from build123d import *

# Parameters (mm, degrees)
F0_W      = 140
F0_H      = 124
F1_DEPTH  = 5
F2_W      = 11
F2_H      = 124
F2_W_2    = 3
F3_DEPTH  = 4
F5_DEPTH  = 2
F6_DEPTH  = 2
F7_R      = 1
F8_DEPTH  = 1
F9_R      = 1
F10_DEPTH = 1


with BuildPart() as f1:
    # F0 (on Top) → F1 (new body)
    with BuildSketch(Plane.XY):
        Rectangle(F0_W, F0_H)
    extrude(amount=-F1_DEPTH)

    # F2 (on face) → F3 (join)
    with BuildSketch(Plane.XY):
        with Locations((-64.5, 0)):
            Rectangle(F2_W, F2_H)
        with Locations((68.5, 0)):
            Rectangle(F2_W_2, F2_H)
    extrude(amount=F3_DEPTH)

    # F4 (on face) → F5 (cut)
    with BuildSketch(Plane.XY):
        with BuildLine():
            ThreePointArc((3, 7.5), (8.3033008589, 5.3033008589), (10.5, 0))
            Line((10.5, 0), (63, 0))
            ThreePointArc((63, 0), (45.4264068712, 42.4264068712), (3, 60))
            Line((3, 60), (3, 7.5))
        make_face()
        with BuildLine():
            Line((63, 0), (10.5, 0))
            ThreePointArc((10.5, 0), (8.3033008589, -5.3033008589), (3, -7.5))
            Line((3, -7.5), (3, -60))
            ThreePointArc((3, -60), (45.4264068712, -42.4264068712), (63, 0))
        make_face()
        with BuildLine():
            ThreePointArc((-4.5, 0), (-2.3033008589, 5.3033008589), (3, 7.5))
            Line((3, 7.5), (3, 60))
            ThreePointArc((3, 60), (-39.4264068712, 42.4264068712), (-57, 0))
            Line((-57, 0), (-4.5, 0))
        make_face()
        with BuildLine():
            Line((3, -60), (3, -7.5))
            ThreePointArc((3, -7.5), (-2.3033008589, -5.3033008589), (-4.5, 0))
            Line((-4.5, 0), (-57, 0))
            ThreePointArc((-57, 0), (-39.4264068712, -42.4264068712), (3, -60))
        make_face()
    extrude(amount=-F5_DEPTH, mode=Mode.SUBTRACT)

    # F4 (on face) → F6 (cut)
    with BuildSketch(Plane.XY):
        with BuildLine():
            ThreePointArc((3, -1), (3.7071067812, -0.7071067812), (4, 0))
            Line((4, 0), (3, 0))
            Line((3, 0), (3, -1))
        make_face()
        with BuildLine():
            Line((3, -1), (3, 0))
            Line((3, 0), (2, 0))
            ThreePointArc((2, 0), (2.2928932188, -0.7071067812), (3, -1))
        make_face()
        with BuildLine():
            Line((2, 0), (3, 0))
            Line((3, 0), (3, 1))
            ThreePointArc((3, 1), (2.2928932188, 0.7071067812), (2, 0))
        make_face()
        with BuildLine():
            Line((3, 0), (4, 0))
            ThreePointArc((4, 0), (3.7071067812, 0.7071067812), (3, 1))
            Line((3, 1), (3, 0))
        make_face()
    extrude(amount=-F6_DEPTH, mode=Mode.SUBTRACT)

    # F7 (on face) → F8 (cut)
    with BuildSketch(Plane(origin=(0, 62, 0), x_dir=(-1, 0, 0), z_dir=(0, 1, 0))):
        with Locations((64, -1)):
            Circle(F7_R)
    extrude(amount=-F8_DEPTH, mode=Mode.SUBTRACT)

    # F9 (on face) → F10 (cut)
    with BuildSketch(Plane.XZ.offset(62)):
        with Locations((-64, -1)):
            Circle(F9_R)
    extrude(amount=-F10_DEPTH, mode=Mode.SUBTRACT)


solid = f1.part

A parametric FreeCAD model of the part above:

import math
import FreeCAD as App
import Part
import Sketcher
Q = App.Units.Quantity


def add_polygon(sketch, points):
    """Adds a closed chain of lines whose ends are joined by coincident constraints."""
    first, n = sketch.GeometryCount, len(points)
    for a, b in zip(points, points[1:] + points[:1]):
        sketch.addGeometry(Part.LineSegment(App.Vector(*a, 0), App.Vector(*b, 0)), False)
    for i in range(n):
        sketch.addConstraint(Sketcher.Constraint("Coincident", first + i, 2, first + (i + 1) % n, 1))

doc = App.newDocument("Part")
body = doc.addObject("PartDesign::Body", "Body")

# Sketch on XY plane
sketch1 = body.newObject("Sketcher::SketchObject", "Sketch")
sketch1.AttachmentSupport = (doc.getObject("XY_Plane"), [""])
sketch1.MapMode = "FlatFace"
add_polygon(sketch1, [(-70, 62), (-70, -62), (70, -62), (70, 62)])  # lines 0-3
sketch1.addConstraint(Sketcher.Constraint("Vertical", 0))
sketch1.addConstraint(Sketcher.Constraint("Horizontal", 1))
sketch1.addConstraint(Sketcher.Constraint("Vertical", 2))
sketch1.addConstraint(Sketcher.Constraint("Horizontal", 3))
sketch1.addConstraint(Sketcher.Constraint("Symmetric", 0, 2, 2, 2, -1, 1))
sketch1.addConstraint(Sketcher.Constraint("DistanceX", 1, 1, 1, 2, Q("140 mm")))
sketch1.addConstraint(Sketcher.Constraint("DistanceY", 0, 2, 0, 1, Q("124 mm")))
pad1 = body.newObject("PartDesign::Pad", "Pad")
pad1.Profile = sketch1
pad1.Length = 5
pad1.Reversed = True

# Sketch on XY plane
sketch2 = body.newObject("Sketcher::SketchObject", "Sketch001")
sketch2.AttachmentSupport = (doc.getObject("XY_Plane"), [""])
sketch2.MapMode = "FlatFace"
add_polygon(sketch2, [(-70, 62), (-70, -62), (-59, -62), (-59, 62)])  # lines 0-3
add_polygon(sketch2, [(67, 62), (67, -62), (70, -62), (70, 62)])  # lines 4-7
sketch2.addConstraint(Sketcher.Constraint("Vertical", 0))
sketch2.addConstraint(Sketcher.Constraint("Horizontal", 1))
sketch2.addConstraint(Sketcher.Constraint("Vertical", 2))
sketch2.addConstraint(Sketcher.Constraint("Horizontal", 3))
sketch2.addConstraint(Sketcher.Constraint("Vertical", 4))
sketch2.addConstraint(Sketcher.Constraint("Horizontal", 5))
sketch2.addConstraint(Sketcher.Constraint("Vertical", 6))
sketch2.addConstraint(Sketcher.Constraint("Horizontal", 7))
sketch2.addConstraint(Sketcher.Constraint("Symmetric", 3, 2, 5, 2, -1, 1))
sketch2.addConstraint(Sketcher.Constraint("Horizontal", 1, 2, 4, 2))
sketch2.addConstraint(Sketcher.Constraint("Horizontal", 3, 2, 6, 2))
sketch2.addConstraint(Sketcher.Constraint("DistanceX", 1, 1, 1, 2, Q("11 mm")))
sketch2.addConstraint(Sketcher.Constraint("DistanceX", 5, 1, 5, 2, Q("3 mm")))
sketch2.addConstraint(Sketcher.Constraint("DistanceY", 0, 2, 0, 1, Q("124 mm")))
sketch2.addConstraint(Sketcher.Constraint("DistanceX", 0, 2, -1, 1, Q("70 mm")))
pad2 = body.newObject("PartDesign::Pad", "Pad001")
pad2.Profile = sketch2
pad2.Length = 4

# Sketch on XY plane
sketch3 = body.newObject("Sketcher::SketchObject", "Sketch002")
sketch3.AttachmentSupport = (doc.getObject("XY_Plane"), [""])
sketch3.MapMode = "FlatFace"
sketch3.addGeometry(Part.Circle(App.Vector(3, 0, 0), App.Vector(0, 0, 1), 60), False)
sketch3.addGeometry(Part.Circle(App.Vector(3, 0, 0), App.Vector(0, 0, 1), 7.5), False)
sketch3.addConstraint(Sketcher.Constraint("Coincident", 1, 3, 0, 3))
sketch3.addConstraint(Sketcher.Constraint("PointOnObject", 0, 3, -1))
sketch3.addConstraint(Sketcher.Constraint("Diameter", 0, Q("120 mm")))
sketch3.addConstraint(Sketcher.Constraint("Diameter", 1, Q("15 mm")))
sketch3.addConstraint(Sketcher.Constraint("DistanceX", -1, 1, 0, 3, Q("3 mm")))
pocket1 = body.newObject("PartDesign::Pocket", "Pocket")
pocket1.Profile = sketch3
pocket1.Length = 2

# Sketch on XY plane
sketch4 = body.newObject("Sketcher::SketchObject", "Sketch003")
sketch4.AttachmentSupport = (doc.getObject("XY_Plane"), [""])
sketch4.MapMode = "FlatFace"
sketch4.addGeometry(Part.ArcOfCircle(Part.Circle(App.Vector(3, 0, 0), App.Vector(0, 0, 1), 1), math.radians(-90), math.radians(0)), False)
sketch4.addGeometry(Part.ArcOfCircle(Part.Circle(App.Vector(3, 0, 0), App.Vector(0, 0, 1), 1), math.radians(0), math.radians(90)), False)
sketch4.addGeometry(Part.ArcOfCircle(Part.Circle(App.Vector(3, 0, 0), App.Vector(0, 0, 1), 1), math.radians(90), math.radians(180)), False)
sketch4.addGeometry(Part.ArcOfCircle(Part.Circle(App.Vector(3, 0, 0), App.Vector(0, 0, 1), 1), math.radians(180), math.radians(270)), False)
sketch4.addConstraint(Sketcher.Constraint("Tangent", 0, 2, 1, 1))
sketch4.addConstraint(Sketcher.Constraint("Tangent", 1, 2, 2, 1))
sketch4.addConstraint(Sketcher.Constraint("Tangent", 2, 2, 3, 1))
sketch4.addConstraint(Sketcher.Constraint("Tangent", 3, 2, 0, 1))
sketch4.addConstraint(Sketcher.Constraint("Equal", 0, 1))
sketch4.addConstraint(Sketcher.Constraint("Symmetric", 1, 2, 3, 2, -1))
sketch4.addConstraint(Sketcher.Constraint("PointOnObject", 0, 2, -1))
sketch4.addConstraint(Sketcher.Constraint("PointOnObject", 2, 2, -1))
sketch4.addConstraint(Sketcher.Constraint("Vertical", 3, 3, 1, 2))
sketch4.addConstraint(Sketcher.Constraint("Radius", 0, Q("1 mm")))
sketch4.addConstraint(Sketcher.Constraint("DistanceX", -1, 1, 0, 3, Q("3 mm")))
pocket2 = body.newObject("PartDesign::Pocket", "Pocket001")
pocket2.Profile = sketch4
pocket2.Length = 2

# Sketch on XZ plane
sketch5 = body.newObject("Sketcher::SketchObject", "Sketch004")
sketch5.AttachmentSupport = (doc.getObject("XZ_Plane"), [""])
sketch5.MapMode = "FlatFace"
sketch5.AttachmentOffset = App.Placement(App.Vector(0, 0, -62), App.Rotation())
sketch5.addGeometry(Part.Circle(App.Vector(-64, -1, 0), App.Vector(0, 0, 1), 1), False)
sketch5.addConstraint(Sketcher.Constraint("Diameter", 0, Q("2 mm")))
sketch5.addConstraint(Sketcher.Constraint("DistanceX", 0, 3, -1, 1, Q("64 mm")))
sketch5.addConstraint(Sketcher.Constraint("DistanceY", 0, 3, -1, 1, Q("1 mm")))
pocket3 = body.newObject("PartDesign::Pocket", "Pocket002")
pocket3.Profile = sketch5
pocket3.Length = 1
pocket3.Reversed = True

# Sketch on XZ plane
sketch6 = body.newObject("Sketcher::SketchObject", "Sketch005")
sketch6.AttachmentSupport = (doc.getObject("XZ_Plane"), [""])
sketch6.MapMode = "FlatFace"
sketch6.AttachmentOffset = App.Placement(App.Vector(0, 0, 62), App.Rotation())
sketch6.addGeometry(Part.Circle(App.Vector(-64, -1, 0), App.Vector(0, 0, 1), 1), False)
sketch6.addConstraint(Sketcher.Constraint("Diameter", 0, Q("2 mm")))
sketch6.addConstraint(Sketcher.Constraint("DistanceX", 0, 3, -1, 1, Q("64 mm")))
sketch6.addConstraint(Sketcher.Constraint("DistanceY", 0, 3, -1, 1, Q("1 mm")))
pocket4 = body.newObject("PartDesign::Pocket", "Pocket003")
pocket4.Profile = sketch6
pocket4.Length = 1

doc.recompute()
